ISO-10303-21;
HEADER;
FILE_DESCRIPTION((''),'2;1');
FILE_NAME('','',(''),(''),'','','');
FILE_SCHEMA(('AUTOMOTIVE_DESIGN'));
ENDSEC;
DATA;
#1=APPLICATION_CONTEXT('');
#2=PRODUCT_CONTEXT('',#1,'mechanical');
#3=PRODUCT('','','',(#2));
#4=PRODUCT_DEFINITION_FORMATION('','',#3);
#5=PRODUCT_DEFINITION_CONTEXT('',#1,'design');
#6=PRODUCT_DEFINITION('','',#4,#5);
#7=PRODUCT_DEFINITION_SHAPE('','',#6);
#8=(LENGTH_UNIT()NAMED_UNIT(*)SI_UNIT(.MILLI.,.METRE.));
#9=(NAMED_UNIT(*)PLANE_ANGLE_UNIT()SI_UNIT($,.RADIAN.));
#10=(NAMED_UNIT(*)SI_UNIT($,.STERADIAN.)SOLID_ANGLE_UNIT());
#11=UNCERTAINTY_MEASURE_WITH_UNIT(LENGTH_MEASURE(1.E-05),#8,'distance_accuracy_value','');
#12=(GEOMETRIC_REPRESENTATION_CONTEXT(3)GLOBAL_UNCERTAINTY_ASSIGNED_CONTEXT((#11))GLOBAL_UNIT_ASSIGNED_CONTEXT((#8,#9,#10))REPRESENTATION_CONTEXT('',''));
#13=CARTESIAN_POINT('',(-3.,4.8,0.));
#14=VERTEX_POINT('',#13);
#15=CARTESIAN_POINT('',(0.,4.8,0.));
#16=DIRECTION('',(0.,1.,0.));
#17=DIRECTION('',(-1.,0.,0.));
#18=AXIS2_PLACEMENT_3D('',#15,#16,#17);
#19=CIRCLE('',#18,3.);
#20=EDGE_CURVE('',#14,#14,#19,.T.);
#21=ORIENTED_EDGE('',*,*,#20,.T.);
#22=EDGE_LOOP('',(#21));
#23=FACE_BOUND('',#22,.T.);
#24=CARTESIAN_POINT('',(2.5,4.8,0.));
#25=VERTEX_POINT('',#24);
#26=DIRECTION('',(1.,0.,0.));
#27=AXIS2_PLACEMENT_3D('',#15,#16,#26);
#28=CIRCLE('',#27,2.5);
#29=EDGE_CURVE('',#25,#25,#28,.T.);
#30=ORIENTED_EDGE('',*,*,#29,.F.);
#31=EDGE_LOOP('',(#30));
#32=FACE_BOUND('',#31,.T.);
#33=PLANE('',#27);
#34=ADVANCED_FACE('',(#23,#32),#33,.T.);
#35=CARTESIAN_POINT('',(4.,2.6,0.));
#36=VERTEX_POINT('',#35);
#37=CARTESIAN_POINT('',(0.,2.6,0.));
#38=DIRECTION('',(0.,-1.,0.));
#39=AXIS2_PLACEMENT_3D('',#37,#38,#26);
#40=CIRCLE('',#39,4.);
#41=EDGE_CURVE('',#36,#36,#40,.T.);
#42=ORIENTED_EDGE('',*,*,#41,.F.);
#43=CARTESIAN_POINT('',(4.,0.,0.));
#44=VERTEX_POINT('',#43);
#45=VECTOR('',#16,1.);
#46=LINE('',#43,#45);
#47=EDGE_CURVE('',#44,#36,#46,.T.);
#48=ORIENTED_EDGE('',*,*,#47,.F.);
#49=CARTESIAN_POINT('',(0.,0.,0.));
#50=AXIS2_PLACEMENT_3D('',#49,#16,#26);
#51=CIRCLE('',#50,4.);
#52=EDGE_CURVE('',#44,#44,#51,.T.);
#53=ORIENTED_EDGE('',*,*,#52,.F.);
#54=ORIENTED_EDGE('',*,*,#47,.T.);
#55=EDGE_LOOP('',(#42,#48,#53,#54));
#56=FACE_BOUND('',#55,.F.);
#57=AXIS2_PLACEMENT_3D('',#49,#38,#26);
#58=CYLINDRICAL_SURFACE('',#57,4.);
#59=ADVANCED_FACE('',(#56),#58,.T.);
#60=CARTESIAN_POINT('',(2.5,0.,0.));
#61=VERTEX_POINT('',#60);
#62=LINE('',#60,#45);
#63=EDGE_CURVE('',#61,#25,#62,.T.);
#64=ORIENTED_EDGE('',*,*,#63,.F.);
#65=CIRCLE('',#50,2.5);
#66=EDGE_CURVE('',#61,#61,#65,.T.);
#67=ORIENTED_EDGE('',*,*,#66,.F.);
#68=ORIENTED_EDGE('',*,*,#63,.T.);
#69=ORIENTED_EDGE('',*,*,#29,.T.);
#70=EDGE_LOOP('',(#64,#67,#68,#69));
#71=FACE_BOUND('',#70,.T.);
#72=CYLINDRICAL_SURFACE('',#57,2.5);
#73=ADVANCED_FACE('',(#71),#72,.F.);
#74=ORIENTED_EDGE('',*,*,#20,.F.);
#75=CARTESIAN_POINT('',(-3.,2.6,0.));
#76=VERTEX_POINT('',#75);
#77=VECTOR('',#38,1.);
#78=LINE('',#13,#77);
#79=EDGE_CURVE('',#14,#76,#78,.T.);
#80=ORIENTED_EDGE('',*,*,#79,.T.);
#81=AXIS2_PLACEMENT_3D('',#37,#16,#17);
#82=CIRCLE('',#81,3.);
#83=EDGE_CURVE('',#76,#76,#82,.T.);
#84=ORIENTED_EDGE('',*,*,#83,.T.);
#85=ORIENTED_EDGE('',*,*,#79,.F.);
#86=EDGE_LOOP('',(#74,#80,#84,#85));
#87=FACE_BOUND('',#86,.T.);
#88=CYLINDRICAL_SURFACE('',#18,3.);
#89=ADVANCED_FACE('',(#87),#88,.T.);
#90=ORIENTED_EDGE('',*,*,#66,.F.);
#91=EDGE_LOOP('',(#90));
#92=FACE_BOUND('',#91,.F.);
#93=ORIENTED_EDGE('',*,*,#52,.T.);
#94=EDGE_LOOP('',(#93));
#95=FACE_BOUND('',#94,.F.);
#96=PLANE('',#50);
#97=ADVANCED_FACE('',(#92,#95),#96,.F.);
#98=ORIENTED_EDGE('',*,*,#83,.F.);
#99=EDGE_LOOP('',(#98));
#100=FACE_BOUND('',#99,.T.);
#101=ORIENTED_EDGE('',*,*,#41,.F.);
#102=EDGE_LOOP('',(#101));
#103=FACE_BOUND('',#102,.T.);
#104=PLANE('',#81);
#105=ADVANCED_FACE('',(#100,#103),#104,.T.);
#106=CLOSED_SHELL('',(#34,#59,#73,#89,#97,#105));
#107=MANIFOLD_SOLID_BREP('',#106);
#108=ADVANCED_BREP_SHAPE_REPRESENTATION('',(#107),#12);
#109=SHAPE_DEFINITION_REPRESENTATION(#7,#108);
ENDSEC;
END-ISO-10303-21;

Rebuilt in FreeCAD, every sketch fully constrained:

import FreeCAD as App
import Part
import Sketcher

doc = App.newDocument("Part")
params = doc.addObject("Spreadsheet::Sheet", "Params")
for row, (alias, value) in enumerate([
    ("sketch1_diameter", "8 mm"),
    ("sketch1_diameter2", "5 mm"),
    ("pad1_length", "4.8 mm"),
    ("sketch2_diameter", "6 mm"),
    ("sketch2_diameter2", "8 mm"),
    ("pocket1_length", "2.2 mm"),
], start=1):
    params.set(f"A{row}", alias)
    params.set(f"B{row}", "=" + value)
    params.setAlias(f"B{row}", alias)

body = doc.addObject("PartDesign::Body", "Body")

# Sketch on XZ plane
sketch1 = body.newObject("Sketcher::SketchObject", "Sketch")
sketch1.AttachmentSupport = (doc.getObject("XZ_Plane"), [""])
sketch1.MapMode = "FlatFace"
sketch1.addGeometry([
    Part.Circle(App.Vector(0, 0, 0), App.Vector(0, 0, 1), 4),
    Part.Circle(App.Vector(0, 0, 0), App.Vector(0, 0, 1), 2.5),
], False)
sketch1.addConstraint([
    Sketcher.Constraint("Coincident", 0, 3, -1, 1),
    Sketcher.Constraint("Coincident", 1, 3, -1, 1),
    Sketcher.Constraint("Diameter", 0, 8.0),
    Sketcher.Constraint("Diameter", 1, 5.0),
])
sketch1.setExpression("Constraints[2]", "Params.sketch1_diameter")
sketch1.setExpression("Constraints[3]", "Params.sketch1_diameter2")
pad1 = body.newObject("PartDesign::Pad", "Pad")
pad1.Profile = sketch1
pad1.setExpression("Length", "Params.pad1_length")
pad1.Reversed = True

# Sketch on XZ plane
sketch2 = body.newObject("Sketcher::SketchObject", "Sketch001")
sketch2.AttachmentSupport = (doc.getObject("XZ_Plane"), [""])
sketch2.MapMode = "FlatFace"
sketch2.AttachmentOffset = App.Placement(App.Vector(0, 0, -4.8), App.Rotation())
sketch2.addGeometry([
    Part.Circle(App.Vector(0, 0, 0), App.Vector(0, 0, 1), 4),
    Part.Circle(App.Vector(0, 0, 0), App.Vector(0, 0, 1), 3),
], False)
sketch2.addConstraint([
    Sketcher.Constraint("Coincident", 0, 3, -1, 1),
    Sketcher.Constraint("Coincident", 1, 3, -1, 1),
    Sketcher.Constraint("Diameter", 1, 6.0),
    Sketcher.Constraint("Diameter", 0, 8.0),
])
sketch2.setExpression("Constraints[2]", "Params.sketch2_diameter")
sketch2.setExpression("Constraints[3]", "Params.sketch2_diameter2")
pocket1 = body.newObject("PartDesign::Pocket", "Pocket")
pocket1.Profile = sketch2
pocket1.setExpression("Length", "Params.pocket1_length")
pocket1.Reversed = True

doc.recompute()
